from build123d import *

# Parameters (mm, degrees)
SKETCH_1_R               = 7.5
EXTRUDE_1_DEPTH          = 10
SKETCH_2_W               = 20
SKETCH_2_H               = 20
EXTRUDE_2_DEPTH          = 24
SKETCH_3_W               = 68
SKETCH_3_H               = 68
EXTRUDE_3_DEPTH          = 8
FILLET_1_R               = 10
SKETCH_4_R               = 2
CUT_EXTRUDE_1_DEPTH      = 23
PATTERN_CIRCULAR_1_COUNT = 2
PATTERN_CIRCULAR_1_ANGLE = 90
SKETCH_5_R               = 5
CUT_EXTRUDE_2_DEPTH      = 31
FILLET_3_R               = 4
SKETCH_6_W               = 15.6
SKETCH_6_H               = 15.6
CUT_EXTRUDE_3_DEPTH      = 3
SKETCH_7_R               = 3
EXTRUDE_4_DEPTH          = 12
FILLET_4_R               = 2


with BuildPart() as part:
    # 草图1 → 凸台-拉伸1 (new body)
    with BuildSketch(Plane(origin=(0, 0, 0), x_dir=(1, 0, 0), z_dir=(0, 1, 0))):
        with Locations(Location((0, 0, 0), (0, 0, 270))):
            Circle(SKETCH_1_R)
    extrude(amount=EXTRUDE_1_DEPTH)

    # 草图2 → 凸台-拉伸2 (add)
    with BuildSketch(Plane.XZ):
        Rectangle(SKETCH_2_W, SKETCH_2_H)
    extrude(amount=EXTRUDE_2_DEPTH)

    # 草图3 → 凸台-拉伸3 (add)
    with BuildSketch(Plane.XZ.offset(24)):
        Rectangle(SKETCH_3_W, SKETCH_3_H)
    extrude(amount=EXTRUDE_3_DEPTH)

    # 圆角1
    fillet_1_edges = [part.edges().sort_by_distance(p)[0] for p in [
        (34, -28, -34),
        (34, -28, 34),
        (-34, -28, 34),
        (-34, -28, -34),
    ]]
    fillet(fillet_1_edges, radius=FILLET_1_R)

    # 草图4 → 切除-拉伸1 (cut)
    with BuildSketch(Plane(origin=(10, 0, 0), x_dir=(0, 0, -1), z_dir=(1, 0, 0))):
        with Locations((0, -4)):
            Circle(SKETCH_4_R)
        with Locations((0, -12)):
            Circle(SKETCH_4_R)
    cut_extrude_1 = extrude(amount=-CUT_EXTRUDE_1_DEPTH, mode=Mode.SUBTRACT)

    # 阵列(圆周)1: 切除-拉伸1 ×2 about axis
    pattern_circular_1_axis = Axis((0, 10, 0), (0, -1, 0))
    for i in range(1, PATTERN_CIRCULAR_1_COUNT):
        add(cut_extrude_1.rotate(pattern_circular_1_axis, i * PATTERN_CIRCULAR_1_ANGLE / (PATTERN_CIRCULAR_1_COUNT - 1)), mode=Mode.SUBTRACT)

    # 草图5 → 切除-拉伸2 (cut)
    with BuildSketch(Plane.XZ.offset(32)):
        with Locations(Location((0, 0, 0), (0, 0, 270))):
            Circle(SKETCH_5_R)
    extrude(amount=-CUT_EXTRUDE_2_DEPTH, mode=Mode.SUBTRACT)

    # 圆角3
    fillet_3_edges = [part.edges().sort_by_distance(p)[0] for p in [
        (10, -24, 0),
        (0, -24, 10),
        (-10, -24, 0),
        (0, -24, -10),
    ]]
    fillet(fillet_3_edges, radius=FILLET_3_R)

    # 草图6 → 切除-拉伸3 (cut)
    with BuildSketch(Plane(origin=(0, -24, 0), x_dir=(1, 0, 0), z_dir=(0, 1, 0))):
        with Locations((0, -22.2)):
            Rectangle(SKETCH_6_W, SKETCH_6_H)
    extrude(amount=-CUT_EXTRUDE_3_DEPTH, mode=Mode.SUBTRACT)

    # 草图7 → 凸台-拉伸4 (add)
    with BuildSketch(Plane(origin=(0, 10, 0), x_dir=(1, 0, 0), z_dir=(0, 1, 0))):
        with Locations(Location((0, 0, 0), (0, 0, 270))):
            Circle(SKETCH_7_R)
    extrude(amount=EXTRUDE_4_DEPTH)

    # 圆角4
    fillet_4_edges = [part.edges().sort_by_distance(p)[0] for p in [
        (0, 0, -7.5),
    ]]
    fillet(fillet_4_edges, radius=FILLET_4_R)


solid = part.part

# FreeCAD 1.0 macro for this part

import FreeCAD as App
import Part
import Sketcher
from FreeCAD import Vector


def edges_at(feature, points):
    """Names of the edges that pass closest to the given points."""
    edges = feature.Shape.Edges
    near = lambda p: min(range(len(edges)), key=lambda i: edges[i].distToShape(Part.Vertex(*p))[0])
    return sorted({f"Edge{near(p) + 1}" for p in points})


def add_polygon(sketch, points):
    """Adds a closed chain of lines whose ends are joined by coincident constraints."""
    first, n = sketch.GeometryCount, len(points)
    for a, b in zip(points, points[1:] + points[:1]):
        sketch.addGeometry(Part.LineSegment(App.Vector(*a, 0), App.Vector(*b, 0)), False)
    for i in range(n):
        sketch.addConstraint(Sketcher.Constraint("Coincident", first + i, 2, first + (i + 1) % n, 1))

doc = App.newDocument("Part")
body = doc.addObject("PartDesign::Body", "Body")

sketch1 = doc.addObject("Sketcher::SketchObject", "Sketch")
body.addObject(sketch1)
sketch1.AttachmentSupport = (doc.XZ_Plane, [""])
sketch1.MapMode = "FlatFace"
sketch1.addGeometry(Part.Circle(Vector(0, 0, 0), Vector(0, 0, 1), 8), False)
sketch1.addConstraint(Sketcher.Constraint("Coincident", 0, 3, -1, 1))
sketch1.addConstraint(Sketcher.Constraint("Diameter", 0, 15.0))
pad1 = doc.addObject("PartDesign::Pad", "Pad")
body.addObject(pad1)
pad1.Profile = sketch1
pad1.Length = 10
pad1.Reversed = True

sketch2 = doc.addObject("Sketcher::SketchObject", "Sketch001")
body.addObject(sketch2)
sketch2.AttachmentSupport = (doc.XZ_Plane, [""])
sketch2.MapMode = "FlatFace"
add_polygon(sketch2, [(-10, 10), (-10, -10), (10, -10), (10, 10)])
sketch2.addConstraint(Sketcher.Constraint("Vertical", 0))
sketch2.addConstraint(Sketcher.Constraint("Horizontal", 1))
sketch2.addConstraint(Sketcher.Constraint("Vertical", 2))
sketch2.addConstraint(Sketcher.Constraint("Horizontal", 3))
sketch2.addConstraint(Sketcher.Constraint("Symmetric", 0, 2, 2, 2, -1, 1))
sketch2.addConstraint(Sketcher.Constraint("Equal", 3, 0))
sketch2.addConstraint(Sketcher.Constraint("DistanceX", 1, 1, 1, 2, 20.0))
pad2 = doc.addObject("PartDesign::Pad", "Pad001")
body.addObject(pad2)
pad2.Profile = sketch2
pad2.Length = 24

sketch3 = doc.addObject("Sketcher::SketchObject", "Sketch002")
body.addObject(sketch3)
sketch3.AttachmentSupport = (doc.XZ_Plane, [""])
sketch3.MapMode = "FlatFace"
sketch3.AttachmentOffset = App.Placement(Vector(0, 0, 24), App.Rotation())
add_polygon(sketch3, [(-34, 34), (-34, -34), (34, -34), (34, 34)])
sketch3.addConstraint(Sketcher.Constraint("Vertical", 0))
sketch3.addConstraint(Sketcher.Constraint("Horizontal", 1))
sketch3.addConstraint(Sketcher.Constraint("Vertical", 2))
sketch3.addConstraint(Sketcher.Constraint("Horizontal", 3))
sketch3.addConstraint(Sketcher.Constraint("Symmetric", 0, 2, 2, 2, -1, 1))
sketch3.addConstraint(Sketcher.Constraint("Equal", 3, 0))
sketch3.addConstraint(Sketcher.Constraint("DistanceX", 1, 1, 1, 2, 68.0))
pad3 = doc.addObject("PartDesign::Pad", "Pad002")
body.addObject(pad3)
pad3.Profile = sketch3
pad3.Length = 8
doc.recompute()

fillet = doc.addObject("PartDesign::Fillet", "Fillet")
body.addObject(fillet)
fillet.Base = (pad3, edges_at(pad3, [
    (34, -28, -34),
    (34, -28, 34),
    (-34, -28, 34),
    (-34, -28, -34),
]))
fillet.Radius = 10

sketch4 = doc.addObject("Sketcher::SketchObject", "Sketch003")
body.addObject(sketch4)
sketch4.AttachmentSupport = (doc.YZ_Plane, [""])
sketch4.MapMode = "FlatFace"
sketch4.AttachmentOffset = App.Placement(Vector(0, 0, 10), App.Rotation())
sketch4.addGeometry(Part.Circle(Vector(-4, 0, 0), Vector(0, 0, 1), 2), False)
sketch4.addGeometry(Part.Circle(Vector(-12, 0, 0), Vector(0, 0, 1), 2), False)
sketch4.addConstraint(Sketcher.Constraint("Equal", 0, 1))
sketch4.addConstraint(Sketcher.Constraint("PointOnObject", 0, 3, -1))
sketch4.addConstraint(Sketcher.Constraint("PointOnObject", 1, 3, -1))
sketch4.addConstraint(Sketcher.Constraint("Diameter", 0, 4.0))
sketch4.addConstraint(Sketcher.Constraint("DistanceX", 0, 3, -1, 1, 4.0))
sketch4.addConstraint(Sketcher.Constraint("DistanceX", 1, 3, -1, 1, 12.0))
pocket1 = doc.addObject("PartDesign::Pocket", "Pocket")
body.addObject(pocket1)
pocket1.Profile = sketch4
pocket1.Length = 23
doc.recompute()

polarpattern = doc.addObject("PartDesign::PolarPattern", "PolarPattern")
body.addObject(polarpattern)
polarpattern.Originals = [pocket1]
polarpattern.Axis = (doc.Y_Axis, [""])
polarpattern.Angle = 90
polarpattern.Occurrences = 2
polarpattern.Reversed = True
body.Tip = polarpattern

sketch5 = doc.addObject("Sketcher::SketchObject", "Sketch004")
body.addObject(sketch5)
sketch5.AttachmentSupport = (doc.XZ_Plane, [""])
sketch5.MapMode = "FlatFace"
sketch5.AttachmentOffset = App.Placement(Vector(0, 0, 32), App.Rotation())
sketch5.addGeometry(Part.Circle(Vector(0, 0, 0), Vector(0, 0, 1), 5), False)
sketch5.addConstraint(Sketcher.Constraint("Coincident", 0, 3, -1, 1))
sketch5.addConstraint(Sketcher.Constraint("Diameter", 0, 10.0))
pocket2 = doc.addObject("PartDesign::Pocket", "Pocket001")
body.addObject(pocket2)
pocket2.Profile = sketch5
pocket2.Length = 31
doc.recompute()

fillet2 = doc.addObject("PartDesign::Fillet", "Fillet001")
body.addObject(fillet2)
fillet2.Base = (pocket2, edges_at(pocket2, [
    (10, -24, 0),
    (0, -24, 10),
    (-10, -24, 0),
    (0, -24, -10),
]))
fillet2.Radius = 4

sketch6 = doc.addObject("Sketcher::SketchObject", "Sketch005")
body.addObject(sketch6)
sketch6.AttachmentSupport = (doc.XZ_Plane, [""])
sketch6.MapMode = "FlatFace"
sketch6.AttachmentOffset = App.Placement(Vector(0, 0, 24), App.Rotation())
add_polygon(sketch6, [(-8, 14), (-8, 30), (8, 30), (8, 14)])
sketch6.addConstraint(Sketcher.Constraint("Vertical", 0))
sketch6.addConstraint(Sketcher.Constraint("Horizontal", 1))
sketch6.addConstraint(Sketcher.Constraint("Vertical", 2))
sketch6.addConstraint(Sketcher.Constraint("Horizontal", 3))
sketch6.addConstraint(Sketcher.Constraint("Equal", 3, 0))
sketch6.addConstraint(Sketcher.Constraint("DistanceX", 1, 1, 1, 2, 15.6))
sketch6.addConstraint(Sketcher.Constraint("DistanceY", -1, 1, 0, 2, 30.0))
sketch6.addConstraint(Sketcher.Constraint("DistanceX", 0, 2, -1, 1, 7.8))
pocket3 = doc.addObject("PartDesign::Pocket", "Pocket002")
body.addObject(pocket3)
pocket3.Profile = sketch6
pocket3.Length = 3
pocket3.Reversed = True

sketch7 = doc.addObject("Sketcher::SketchObject", "Sketch006")
body.addObject(sketch7)
sketch7.AttachmentSupport = (doc.XZ_Plane, [""])
sketch7.MapMode = "FlatFace"
sketch7.AttachmentOffset = App.Placement(Vector(0, 0, -10), App.Rotation())
sketch7.addGeometry(Part.Circle(Vector(0, 0, 0), Vector(0, 0, 1), 3), False)
sketch7.addConstraint(Sketcher.Constraint("Coincident", 0, 3, -1, 1))
sketch7.addConstraint(Sketcher.Constraint("Diameter", 0, 6.0))
pad4 = doc.addObject("PartDesign::Pad", "Pad003")
body.addObject(pad4)
pad4.Profile = sketch7
pad4.Length = 12
pad4.Reversed = True
doc.recompute()

fillet3 = doc.addObject("PartDesign::Fillet", "Fillet002")
body.addObject(fillet3)
fillet3.Base = (pad4, edges_at(pad4, [(0, 0, -7.5)]))
fillet3.Radius = 2

doc.recompute()
